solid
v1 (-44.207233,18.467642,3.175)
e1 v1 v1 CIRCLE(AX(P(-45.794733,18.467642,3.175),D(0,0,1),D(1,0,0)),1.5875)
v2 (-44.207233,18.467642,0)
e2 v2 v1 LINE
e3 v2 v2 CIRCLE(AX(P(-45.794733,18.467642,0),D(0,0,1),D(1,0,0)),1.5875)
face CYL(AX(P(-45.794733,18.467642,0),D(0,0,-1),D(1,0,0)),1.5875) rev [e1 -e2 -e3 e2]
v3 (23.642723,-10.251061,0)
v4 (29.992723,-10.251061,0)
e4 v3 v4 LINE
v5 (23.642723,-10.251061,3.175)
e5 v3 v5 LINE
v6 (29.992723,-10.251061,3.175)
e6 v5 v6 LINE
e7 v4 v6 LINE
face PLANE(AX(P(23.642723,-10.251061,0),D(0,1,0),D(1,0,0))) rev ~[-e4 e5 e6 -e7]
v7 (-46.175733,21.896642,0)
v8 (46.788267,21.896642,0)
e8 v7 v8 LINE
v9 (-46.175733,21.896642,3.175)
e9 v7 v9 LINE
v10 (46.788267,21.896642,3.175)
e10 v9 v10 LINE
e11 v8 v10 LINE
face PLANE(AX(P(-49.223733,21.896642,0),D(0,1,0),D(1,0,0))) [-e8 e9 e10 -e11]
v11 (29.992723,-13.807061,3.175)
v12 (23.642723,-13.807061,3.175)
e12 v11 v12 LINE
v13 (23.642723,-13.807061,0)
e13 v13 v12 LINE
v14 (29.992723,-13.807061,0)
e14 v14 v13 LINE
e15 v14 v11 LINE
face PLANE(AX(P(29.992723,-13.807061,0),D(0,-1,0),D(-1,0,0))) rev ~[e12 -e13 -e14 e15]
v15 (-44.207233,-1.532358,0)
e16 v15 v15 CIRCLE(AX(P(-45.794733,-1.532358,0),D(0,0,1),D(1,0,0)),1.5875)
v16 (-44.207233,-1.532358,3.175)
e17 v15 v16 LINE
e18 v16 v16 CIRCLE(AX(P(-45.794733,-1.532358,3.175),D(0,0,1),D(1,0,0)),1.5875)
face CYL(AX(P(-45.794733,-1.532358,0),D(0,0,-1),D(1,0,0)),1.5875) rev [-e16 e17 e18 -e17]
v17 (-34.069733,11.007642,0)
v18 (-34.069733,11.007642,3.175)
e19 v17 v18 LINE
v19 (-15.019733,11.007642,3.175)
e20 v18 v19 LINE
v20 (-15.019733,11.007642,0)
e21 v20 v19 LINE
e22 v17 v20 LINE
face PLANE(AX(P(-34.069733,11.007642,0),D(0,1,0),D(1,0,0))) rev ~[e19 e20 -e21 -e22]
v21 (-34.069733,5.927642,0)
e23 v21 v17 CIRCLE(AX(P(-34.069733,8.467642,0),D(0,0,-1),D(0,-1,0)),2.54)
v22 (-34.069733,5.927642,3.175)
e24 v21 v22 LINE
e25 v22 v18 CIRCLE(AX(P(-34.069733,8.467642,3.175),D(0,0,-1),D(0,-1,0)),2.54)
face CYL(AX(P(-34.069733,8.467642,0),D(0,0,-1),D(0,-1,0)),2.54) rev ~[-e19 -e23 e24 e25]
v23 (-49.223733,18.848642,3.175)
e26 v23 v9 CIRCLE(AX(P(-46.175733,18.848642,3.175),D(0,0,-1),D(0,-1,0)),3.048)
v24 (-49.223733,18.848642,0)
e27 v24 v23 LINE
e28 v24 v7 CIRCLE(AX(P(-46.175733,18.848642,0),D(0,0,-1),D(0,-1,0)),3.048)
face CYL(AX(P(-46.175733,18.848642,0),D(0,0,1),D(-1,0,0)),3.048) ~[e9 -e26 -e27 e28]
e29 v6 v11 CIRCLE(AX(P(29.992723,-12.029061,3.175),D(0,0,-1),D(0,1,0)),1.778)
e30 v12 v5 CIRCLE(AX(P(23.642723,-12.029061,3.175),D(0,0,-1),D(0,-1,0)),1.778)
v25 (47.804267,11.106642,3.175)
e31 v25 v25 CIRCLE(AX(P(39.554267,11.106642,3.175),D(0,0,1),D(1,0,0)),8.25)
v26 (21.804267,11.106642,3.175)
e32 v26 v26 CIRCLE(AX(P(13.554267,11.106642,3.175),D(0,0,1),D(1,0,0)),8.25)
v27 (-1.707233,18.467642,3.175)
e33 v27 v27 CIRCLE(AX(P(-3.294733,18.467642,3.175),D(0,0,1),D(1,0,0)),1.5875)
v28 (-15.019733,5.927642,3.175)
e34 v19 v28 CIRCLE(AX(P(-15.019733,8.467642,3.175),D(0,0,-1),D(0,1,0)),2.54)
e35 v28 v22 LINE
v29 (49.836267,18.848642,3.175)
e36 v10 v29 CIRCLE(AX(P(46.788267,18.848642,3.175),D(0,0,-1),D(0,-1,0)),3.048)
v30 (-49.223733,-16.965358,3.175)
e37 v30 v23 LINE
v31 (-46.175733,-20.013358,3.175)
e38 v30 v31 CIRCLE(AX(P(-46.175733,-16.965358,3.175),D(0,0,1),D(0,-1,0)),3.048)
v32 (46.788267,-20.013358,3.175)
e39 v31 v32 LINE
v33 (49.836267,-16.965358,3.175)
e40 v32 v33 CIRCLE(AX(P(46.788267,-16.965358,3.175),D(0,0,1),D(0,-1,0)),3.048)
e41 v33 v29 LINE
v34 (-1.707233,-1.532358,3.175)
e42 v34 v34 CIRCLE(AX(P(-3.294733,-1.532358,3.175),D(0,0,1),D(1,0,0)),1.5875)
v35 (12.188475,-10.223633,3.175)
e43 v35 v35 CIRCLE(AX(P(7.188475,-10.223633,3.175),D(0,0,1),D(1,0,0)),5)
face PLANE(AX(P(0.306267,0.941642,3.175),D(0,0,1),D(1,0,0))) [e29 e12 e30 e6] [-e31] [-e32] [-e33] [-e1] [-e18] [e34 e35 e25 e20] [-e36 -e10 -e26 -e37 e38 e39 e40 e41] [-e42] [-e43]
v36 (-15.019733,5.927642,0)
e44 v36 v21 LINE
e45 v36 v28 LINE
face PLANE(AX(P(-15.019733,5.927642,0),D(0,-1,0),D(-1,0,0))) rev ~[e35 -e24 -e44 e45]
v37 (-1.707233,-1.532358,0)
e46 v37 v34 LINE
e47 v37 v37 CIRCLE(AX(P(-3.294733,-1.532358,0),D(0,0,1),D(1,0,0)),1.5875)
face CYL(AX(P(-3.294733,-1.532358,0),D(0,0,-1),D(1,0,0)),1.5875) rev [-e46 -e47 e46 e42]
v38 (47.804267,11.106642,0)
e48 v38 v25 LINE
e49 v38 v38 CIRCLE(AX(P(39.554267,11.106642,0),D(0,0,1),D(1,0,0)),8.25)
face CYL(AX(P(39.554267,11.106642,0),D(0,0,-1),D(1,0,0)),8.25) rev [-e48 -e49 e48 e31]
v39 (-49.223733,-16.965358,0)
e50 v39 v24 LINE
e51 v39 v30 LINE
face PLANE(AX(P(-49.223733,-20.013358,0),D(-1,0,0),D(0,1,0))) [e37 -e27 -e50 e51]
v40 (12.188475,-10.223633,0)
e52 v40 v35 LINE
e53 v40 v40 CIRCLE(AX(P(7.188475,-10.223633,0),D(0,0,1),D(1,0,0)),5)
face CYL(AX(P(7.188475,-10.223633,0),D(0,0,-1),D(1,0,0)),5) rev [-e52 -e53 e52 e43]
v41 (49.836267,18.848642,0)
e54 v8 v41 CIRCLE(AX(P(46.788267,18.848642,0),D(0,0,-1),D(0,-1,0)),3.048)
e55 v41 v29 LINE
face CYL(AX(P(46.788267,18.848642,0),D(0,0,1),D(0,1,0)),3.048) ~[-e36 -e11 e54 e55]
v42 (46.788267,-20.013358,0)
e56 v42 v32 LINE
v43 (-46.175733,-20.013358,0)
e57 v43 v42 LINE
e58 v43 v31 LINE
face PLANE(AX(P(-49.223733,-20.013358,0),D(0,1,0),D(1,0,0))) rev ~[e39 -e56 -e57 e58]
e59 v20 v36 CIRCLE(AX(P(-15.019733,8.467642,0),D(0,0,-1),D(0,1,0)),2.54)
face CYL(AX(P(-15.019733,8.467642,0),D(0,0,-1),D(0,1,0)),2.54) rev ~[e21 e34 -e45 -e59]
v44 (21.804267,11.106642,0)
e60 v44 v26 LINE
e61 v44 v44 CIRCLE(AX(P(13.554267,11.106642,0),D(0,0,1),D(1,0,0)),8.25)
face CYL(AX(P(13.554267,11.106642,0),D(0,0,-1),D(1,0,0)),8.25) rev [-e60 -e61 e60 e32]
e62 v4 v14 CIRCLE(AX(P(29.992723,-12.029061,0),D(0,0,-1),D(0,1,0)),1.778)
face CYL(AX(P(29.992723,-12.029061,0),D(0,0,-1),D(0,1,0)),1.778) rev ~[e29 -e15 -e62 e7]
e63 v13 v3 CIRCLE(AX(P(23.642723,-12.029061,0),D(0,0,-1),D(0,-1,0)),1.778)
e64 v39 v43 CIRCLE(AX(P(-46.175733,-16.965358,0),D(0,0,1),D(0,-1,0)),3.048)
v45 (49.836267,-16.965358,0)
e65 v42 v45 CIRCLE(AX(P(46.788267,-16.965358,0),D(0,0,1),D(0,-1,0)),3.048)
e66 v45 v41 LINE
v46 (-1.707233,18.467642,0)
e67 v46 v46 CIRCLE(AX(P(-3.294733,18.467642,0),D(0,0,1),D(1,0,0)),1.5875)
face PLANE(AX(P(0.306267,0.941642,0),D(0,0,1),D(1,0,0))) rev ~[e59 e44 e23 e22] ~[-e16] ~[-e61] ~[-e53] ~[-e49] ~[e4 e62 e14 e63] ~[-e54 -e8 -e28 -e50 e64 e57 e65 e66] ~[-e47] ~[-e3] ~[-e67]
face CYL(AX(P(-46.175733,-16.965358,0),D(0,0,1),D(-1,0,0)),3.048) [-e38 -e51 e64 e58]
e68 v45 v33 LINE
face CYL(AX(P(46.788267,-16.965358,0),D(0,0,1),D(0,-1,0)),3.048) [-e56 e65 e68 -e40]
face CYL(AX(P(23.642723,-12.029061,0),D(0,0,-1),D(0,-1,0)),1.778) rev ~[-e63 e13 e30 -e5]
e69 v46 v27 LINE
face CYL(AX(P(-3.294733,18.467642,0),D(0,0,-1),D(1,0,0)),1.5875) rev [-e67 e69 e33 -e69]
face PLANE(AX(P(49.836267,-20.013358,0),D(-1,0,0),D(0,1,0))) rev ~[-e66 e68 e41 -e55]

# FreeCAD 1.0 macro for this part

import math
import FreeCAD as App
import Part
import Sketcher

V = App.Vector
Q = App.Units.Quantity


def edges_at(feature, points):
    """Names of the edges that pass closest to the given points."""
    edges = feature.Shape.Edges
    near = lambda p: min(range(len(edges)), key=lambda i: edges[i].distToShape(Part.Vertex(*p))[0])
    return sorted({f"Edge{near(p) + 1}" for p in points})


def add_polygon(sketch, points):
    """Adds a closed chain of lines whose ends are joined by coincident constraints."""
    first, n = sketch.GeometryCount, len(points)
    for a, b in zip(points, points[1:] + points[:1]):
        sketch.addGeometry(Part.LineSegment(App.Vector(*a, 0), App.Vector(*b, 0)), False)
    for i in range(n):
        sketch.addConstraint(Sketcher.Constraint("Coincident", first + i, 2, first + (i + 1) % n, 1))

doc = App.newDocument("Part")
body = doc.addObject("PartDesign::Body", "Body")

# Sketch on XY plane
sketch1 = doc.addObject("Sketcher::SketchObject", "Sketch")
body.addObject(sketch1)
sketch1.AttachmentSupport = (doc.XY_Plane, [""])
sketch1.MapMode = "FlatFace"
add_polygon(sketch1, [(-49.223733, 21.896642), (-49.223733, -20.013358), (49.836267, -20.013358), (49.836267, 21.896642)])  # lines 0-3
sketch1.addGeometry(Part.Circle(V(-45.794733, -1.532358, 0), V(0, 0, 1), 1.5875), False)  # 4
sketch1.addGeometry(Part.Circle(V(-3.294733, -1.532358, 0), V(0, 0, 1), 1.5875), False)  # 5
sketch1.addGeometry(Part.Circle(V(7.188475, -10.223633, 0), V(0, 0, 1), 5), False)  # 6
sketch1.addGeometry(Part.ArcOfCircle(Part.Circle(V(29.992723, -12.029061, 0), V(0, 0, 1), 1.778), math.radians(-90), math.radians(90)), False)  # 7
sketch1.addGeometry(Part.LineSegment(V(29.992723, -13.807061, 0), V(23.642723, -13.807061, 0)), False)  # 8
sketch1.addGeometry(Part.ArcOfCircle(Part.Circle(V(23.642723, -12.029061, 0), V(0, 0, 1), 1.778), math.radians(90), math.radians(270)), False)  # 9
sketch1.addGeometry(Part.LineSegment(V(23.642723, -10.251061, 0), V(29.992723, -10.251061, 0)), False)  # 10
sketch1.addGeometry(Part.ArcOfCircle(Part.Circle(V(-15.019733, 8.467642, 0), V(0, 0, 1), 2.54), math.radians(-90), math.radians(90)), False)  # 11
sketch1.addGeometry(Part.LineSegment(V(-15.019733, 5.927642, 0), V(-34.069733, 5.927642, 0)), False)  # 12
sketch1.addGeometry(Part.ArcOfCircle(Part.Circle(V(-34.069733, 8.467642, 0), V(0, 0, 1), 2.54), math.radians(90), math.radians(270)), False)  # 13
sketch1.addGeometry(Part.LineSegment(V(-34.069733, 11.007642, 0), V(-15.019733, 11.007642, 0)), False)  # 14
sketch1.addGeometry(Part.Circle(V(-45.794733, 18.467642, 0), V(0, 0, 1), 1.5875), False)  # 15
sketch1.addGeometry(Part.Circle(V(-3.294733, 18.467642, 0), V(0, 0, 1), 1.5875), False)  # 16
sketch1.addGeometry(Part.Circle(V(13.554267, 11.106642, 0), V(0, 0, 1), 8.25), False)  # 17
sketch1.addGeometry(Part.Circle(V(39.554267, 11.106642, 0), V(0, 0, 1), 8.25), False)  # 18
sketch1.addConstraint([
    Sketcher.Constraint("Tangent", 7, 1, 8, 1),
    Sketcher.Constraint("Tangent", 8, 2, 9, 2),
    Sketcher.Constraint("Tangent", 9, 1, 10, 1),
    Sketcher.Constraint("Tangent", 10, 2, 7, 2),
    Sketcher.Constraint("Tangent", 11, 1, 12, 1),
    Sketcher.Constraint("Tangent", 12, 2, 13, 2),
    Sketcher.Constraint("Tangent", 13, 1, 14, 1),
    Sketcher.Constraint("Tangent", 14, 2, 11, 2),
    Sketcher.Constraint("Vertical", 0),
    Sketcher.Constraint("Horizontal", 1),
    Sketcher.Constraint("Vertical", 2),
    Sketcher.Constraint("Horizontal", 3),
    Sketcher.Constraint("Horizontal", 8),
    Sketcher.Constraint("Horizontal", 10),
    Sketcher.Constraint("Horizontal", 12),
    Sketcher.Constraint("Horizontal", 14),
    Sketcher.Constraint("Equal", 4, 5),
    Sketcher.Constraint("Equal", 5, 15),
    Sketcher.Constraint("Equal", 15, 16),
    Sketcher.Constraint("Equal", 17, 18),
    Sketcher.Constraint("Horizontal", 4, 3, 5, 3),
    Sketcher.Constraint("Horizontal", 15, 3, 16, 3),
    Sketcher.Constraint("Horizontal", 17, 3, 18, 3),
    Sketcher.Constraint("Vertical", 4, 3, 15, 3),
    Sketcher.Constraint("Vertical", 5, 3, 16, 3),
    Sketcher.Constraint("Radius", 11, Q("0.1 in")),
    Sketcher.Constraint("Radius", 7, Q("0.07 in")),
    Sketcher.Constraint("Diameter", 4, Q("0.125 in")),
    Sketcher.Constraint("DistanceX", 1, 1, 1, 2, Q("3.9 in")),
    Sketcher.Constraint("DistanceX", 8, 2, 8, 1, Q("0.25 in")),
    Sketcher.Constraint("DistanceX", 12, 2, 12, 1, Q("0.75 in")),
    Sketcher.Constraint("DistanceY", 0, 2, 0, 1, Q("1.65 in")),
    Sketcher.Constraint("Diameter", 6, Q("10 mm")),
    Sketcher.Constraint("Diameter", 17, Q("16.5 mm")),
    Sketcher.Constraint("DistanceX", 0, 2, 4, 3, Q("0.135 in")),
    Sketcher.Constraint("DistanceY", 0, 2, 15, 3, Q("1.515 in")),
    Sketcher.Constraint("DistanceX", 4, 3, 5, 3, Q("42.5 mm")),
    Sketcher.Constraint("DistanceX", 11, 3, 5, 3, Q("11.725 mm")),
    Sketcher.Constraint("DistanceY", 5, 3, 11, 3, Q("10 mm")),
    Sketcher.Constraint("DistanceY", 13, 3, 15, 3, Q("10 mm")),
    Sketcher.Constraint("DistanceX", 16, 3, 17, 3, Q("16.849 mm")),
    Sketcher.Constraint("DistanceY", 17, 3, 16, 3, Q("7.361 mm")),
    Sketcher.Constraint("DistanceX", 17, 3, 18, 3, Q("26 mm")),
    Sketcher.Constraint("DistanceY", 4, 3, -1, 1, Q("1.532358 mm")),
    Sketcher.Constraint("DistanceY", 7, 3, -1, 1, Q("12.029061 mm")),
    Sketcher.Constraint("DistanceX", 5, 3, 6, 3, Q("10.483208 mm")),
    Sketcher.Constraint("DistanceX", 6, 3, 7, 3, Q("22.804248 mm")),
    Sketcher.Constraint("DistanceY", 7, 3, 6, 3, Q("1.805428 mm")),
    Sketcher.Constraint("DistanceX", 4, 3, -1, 1, Q("45.794733 mm")),
])
pad1 = doc.addObject("PartDesign::Pad", "Pad")
body.addObject(pad1)
pad1.Profile = sketch1
pad1.Length = Q("0.125 in")
doc.recompute()

fillet = doc.addObject("PartDesign::Fillet", "Fillet")
body.addObject(fillet)
fillet.Base = (pad1, edges_at(pad1, [
    (49.836, 21.897, 1.587),
    (49.836, -20.013, 1.587),
    (-49.224, -20.013, 1.587),
    (-49.224, 21.897, 1.587),
]))
fillet.Radius = Q("0.12 in")

doc.recompute()
